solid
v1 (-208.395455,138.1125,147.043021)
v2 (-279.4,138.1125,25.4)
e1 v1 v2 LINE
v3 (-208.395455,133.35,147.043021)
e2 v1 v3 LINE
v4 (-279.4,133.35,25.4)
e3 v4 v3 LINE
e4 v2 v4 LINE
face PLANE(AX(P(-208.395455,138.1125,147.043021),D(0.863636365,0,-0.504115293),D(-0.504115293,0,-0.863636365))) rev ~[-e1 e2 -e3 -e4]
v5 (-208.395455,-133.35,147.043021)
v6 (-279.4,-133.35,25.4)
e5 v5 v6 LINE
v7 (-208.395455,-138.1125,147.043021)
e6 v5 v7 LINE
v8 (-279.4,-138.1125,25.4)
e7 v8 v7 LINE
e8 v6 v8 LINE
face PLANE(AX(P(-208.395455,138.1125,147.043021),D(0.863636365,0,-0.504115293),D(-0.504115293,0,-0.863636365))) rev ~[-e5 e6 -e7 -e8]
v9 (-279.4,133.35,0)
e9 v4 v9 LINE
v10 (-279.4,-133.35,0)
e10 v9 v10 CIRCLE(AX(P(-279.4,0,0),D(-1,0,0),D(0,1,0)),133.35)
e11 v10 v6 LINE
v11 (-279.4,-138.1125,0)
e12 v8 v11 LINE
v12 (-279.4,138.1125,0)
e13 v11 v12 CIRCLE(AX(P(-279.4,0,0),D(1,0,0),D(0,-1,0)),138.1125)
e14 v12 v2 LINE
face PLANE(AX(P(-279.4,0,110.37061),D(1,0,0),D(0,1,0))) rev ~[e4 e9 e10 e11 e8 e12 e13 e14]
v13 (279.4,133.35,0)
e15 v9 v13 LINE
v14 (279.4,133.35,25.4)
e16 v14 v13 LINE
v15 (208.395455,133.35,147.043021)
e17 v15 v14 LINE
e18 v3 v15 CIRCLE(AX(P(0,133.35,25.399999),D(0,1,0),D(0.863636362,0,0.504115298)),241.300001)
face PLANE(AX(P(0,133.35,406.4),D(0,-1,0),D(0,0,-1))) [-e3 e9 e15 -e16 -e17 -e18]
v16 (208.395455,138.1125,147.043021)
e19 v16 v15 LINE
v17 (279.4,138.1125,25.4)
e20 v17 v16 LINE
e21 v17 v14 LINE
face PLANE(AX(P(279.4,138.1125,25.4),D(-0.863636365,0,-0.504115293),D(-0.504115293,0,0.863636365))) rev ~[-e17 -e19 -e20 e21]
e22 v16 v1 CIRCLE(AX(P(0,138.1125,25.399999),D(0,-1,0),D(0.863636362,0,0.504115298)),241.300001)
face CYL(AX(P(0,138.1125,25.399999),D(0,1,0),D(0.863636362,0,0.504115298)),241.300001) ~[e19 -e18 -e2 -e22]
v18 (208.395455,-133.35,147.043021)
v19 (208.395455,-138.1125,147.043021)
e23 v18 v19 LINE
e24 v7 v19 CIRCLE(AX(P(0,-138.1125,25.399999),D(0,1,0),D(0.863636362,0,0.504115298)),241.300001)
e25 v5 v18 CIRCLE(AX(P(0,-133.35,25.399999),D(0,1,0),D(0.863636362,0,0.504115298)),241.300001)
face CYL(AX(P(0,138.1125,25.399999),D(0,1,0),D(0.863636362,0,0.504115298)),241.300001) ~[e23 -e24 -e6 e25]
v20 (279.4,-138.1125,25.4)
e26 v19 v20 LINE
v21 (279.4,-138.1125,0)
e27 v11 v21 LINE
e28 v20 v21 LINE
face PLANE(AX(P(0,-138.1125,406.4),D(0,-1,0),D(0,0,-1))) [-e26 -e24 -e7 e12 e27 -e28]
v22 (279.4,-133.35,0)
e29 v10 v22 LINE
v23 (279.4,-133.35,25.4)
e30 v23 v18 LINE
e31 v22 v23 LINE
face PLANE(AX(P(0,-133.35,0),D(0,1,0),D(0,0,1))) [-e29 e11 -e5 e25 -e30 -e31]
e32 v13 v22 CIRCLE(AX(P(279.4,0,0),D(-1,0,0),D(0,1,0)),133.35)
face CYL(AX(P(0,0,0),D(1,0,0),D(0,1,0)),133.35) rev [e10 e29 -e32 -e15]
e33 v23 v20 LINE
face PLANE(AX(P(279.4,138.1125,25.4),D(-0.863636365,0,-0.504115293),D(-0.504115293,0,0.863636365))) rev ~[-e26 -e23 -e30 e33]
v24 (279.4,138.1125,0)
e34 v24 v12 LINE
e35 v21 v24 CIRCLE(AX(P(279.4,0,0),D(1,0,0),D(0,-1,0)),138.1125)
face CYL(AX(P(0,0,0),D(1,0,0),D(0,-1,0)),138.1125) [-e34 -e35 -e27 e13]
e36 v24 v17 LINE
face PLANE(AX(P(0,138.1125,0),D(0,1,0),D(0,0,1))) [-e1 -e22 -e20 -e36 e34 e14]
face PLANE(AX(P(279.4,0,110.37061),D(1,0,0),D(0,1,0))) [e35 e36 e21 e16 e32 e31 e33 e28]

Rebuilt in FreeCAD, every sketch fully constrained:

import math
import FreeCAD as App
import Part
import Sketcher

V = App.Vector
Q = App.Units.Quantity

doc = App.newDocument("Part")
body = doc.addObject("PartDesign::Body", "Body")

# Sketch on YZ plane
sketch1 = body.newObject("Sketcher::SketchObject", "Sketch")
sketch1.AttachmentSupport = (doc.getObject("YZ_Plane"), [""])
sketch1.MapMode = "FlatFace"
sketch1.addGeometry([
    Part.LineSegment(V(133.3, 406.4, 0), V(133.3, 0, 0)),  # 0
    Part.ArcOfCircle(Part.Circle(V(0, 0, 0), V(0, 0, 1), 133.3), math.radians(180), math.radians(360)),  # 1
    Part.LineSegment(V(-133.3, 0, 0), V(-133.3, 406.4, 0)),  # 2
    Part.LineSegment(V(-133.3, 406.4, 0), V(-138.1, 406.4, 0)),  # 3
    Part.LineSegment(V(-138.1, 406.4, 0), V(-138.1, 0, 0)),  # 4
    Part.ArcOfCircle(Part.Circle(V(0, 0, 0), V(0, 0, 1), 138.1), math.radians(180), math.radians(360)),  # 5
    Part.LineSegment(V(138.1, 0, 0), V(138.1, 406.4, 0)),  # 6
    Part.LineSegment(V(138.1, 406.4, 0), V(133.3, 406.4, 0)),  # 7
], False)
sketch1.addConstraint([
    Sketcher.Constraint("Tangent", 0, 2, 1, 2),
    Sketcher.Constraint("Tangent", 1, 1, 2, 1),
    Sketcher.Constraint("Coincident", 2, 2, 3, 1),
    Sketcher.Constraint("Coincident", 3, 2, 4, 1),
    Sketcher.Constraint("Tangent", 4, 2, 5, 1),
    Sketcher.Constraint("Tangent", 5, 2, 6, 1),
    Sketcher.Constraint("Coincident", 6, 2, 7, 1),
    Sketcher.Constraint("Coincident", 7, 2, 0, 1),
    Sketcher.Constraint("Vertical", 0),
    Sketcher.Constraint("Vertical", 2),
    Sketcher.Constraint("Horizontal", 3),
    Sketcher.Constraint("Vertical", 4),
    Sketcher.Constraint("Vertical", 6),
    Sketcher.Constraint("Horizontal", 7),
    Sketcher.Constraint("Coincident", 1, 3, -1, 1),
    Sketcher.Constraint("Coincident", 5, 3, -1, 1),
    Sketcher.Constraint("Horizontal", 3, 2, 6, 2),
    Sketcher.Constraint("DistanceY", 0, 2, 0, 1, Q("16 in")),
    Sketcher.Constraint("Radius", 1, Q("5.25 in")),
    Sketcher.Constraint("Radius", 5, Q("5.4375 in")),
])
pad1 = body.newObject("PartDesign::Pad", "Pad")
pad1.Profile = sketch1
pad1.Length = Q("22 in")
pad1.Midplane = True

# Sketch on XZ plane
sketch2 = body.newObject("Sketcher::SketchObject", "Sketch001")
sketch2.AttachmentSupport = (doc.getObject("XZ_Plane"), [""])
sketch2.MapMode = "FlatFace"
sketch2.AttachmentOffset = App.Placement(V(0, 0, -5.4375 * 25.4), App.Rotation())
sketch2.addGeometry([
    Part.ArcOfCircle(Part.Circle(V(0, 25, 0), V(0, 0, 1), 241), math.radians(30), math.radians(150)),  # 0
    Part.LineSegment(V(-208, 147, 0), V(-279, 25, 0)),  # 1
    Part.LineSegment(V(-279, 25, 0), V(-279, 406, 0)),  # 2
    Part.LineSegment(V(-279, 406, 0), V(279, 406, 0)),  # 3
    Part.LineSegment(V(279, 406, 0), V(279, 25, 0)),  # 4
    Part.LineSegment(V(279, 25, 0), V(208, 147, 0)),  # 5
], False)
sketch2.addConstraint([
    Sketcher.Constraint("Tangent", 0, 2, 1, 1),
    Sketcher.Constraint("Coincident", 1, 2, 2, 1),
    Sketcher.Constraint("Coincident", 2, 2, 3, 1),
    Sketcher.Constraint("Coincident", 3, 2, 4, 1),
    Sketcher.Constraint("Coincident", 4, 2, 5, 1),
    Sketcher.Constraint("Tangent", 5, 2, 0, 1),
    Sketcher.Constraint("Vertical", 2),
    Sketcher.Constraint("Horizontal", 3),
    Sketcher.Constraint("Vertical", 4),
    Sketcher.Constraint("Symmetric", 1, 2, 4, 2, -2),
    Sketcher.Constraint("PointOnObject", 0, 3, -2),
    Sketcher.Constraint("Horizontal", 0, 3, 1, 2),
    Sketcher.Constraint("Radius", 0, Q("9.5 in")),
    Sketcher.Constraint("DistanceX", 3, 1, 3, 2, Q("22 in")),
    Sketcher.Constraint("DistanceY", 2, 1, 2, 2, Q("15 in")),
    Sketcher.Constraint("DistanceY", -1, 1, 0, 3, Q("1 in")),
])
pocket1 = body.newObject("PartDesign::Pocket", "Pocket")
pocket1.Profile = sketch2
pocket1.Type = "ThroughAll"
pocket1.Reversed = True

doc.recompute()
